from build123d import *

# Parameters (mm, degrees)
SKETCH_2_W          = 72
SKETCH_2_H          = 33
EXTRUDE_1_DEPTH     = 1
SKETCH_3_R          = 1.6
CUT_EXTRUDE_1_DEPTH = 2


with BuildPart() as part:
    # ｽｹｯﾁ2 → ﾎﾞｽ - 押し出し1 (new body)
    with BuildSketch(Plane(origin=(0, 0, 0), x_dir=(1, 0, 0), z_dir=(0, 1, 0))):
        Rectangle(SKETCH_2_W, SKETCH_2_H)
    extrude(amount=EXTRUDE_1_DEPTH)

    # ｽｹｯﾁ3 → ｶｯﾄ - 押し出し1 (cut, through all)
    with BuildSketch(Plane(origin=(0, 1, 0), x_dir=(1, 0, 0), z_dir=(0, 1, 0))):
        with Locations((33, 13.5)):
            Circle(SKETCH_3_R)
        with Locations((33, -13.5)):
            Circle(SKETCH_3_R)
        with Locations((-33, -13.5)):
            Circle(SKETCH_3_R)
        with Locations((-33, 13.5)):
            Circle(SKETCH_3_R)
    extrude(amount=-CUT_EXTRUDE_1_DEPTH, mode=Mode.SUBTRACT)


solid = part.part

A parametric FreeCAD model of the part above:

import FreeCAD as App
import Part
import Sketcher

V = App.Vector


def add_polygon(sketch, points):
    """Adds a closed chain of lines whose ends are joined by coincident constraints."""
    first, n = sketch.GeometryCount, len(points)
    for a, b in zip(points, points[1:] + points[:1]):
        sketch.addGeometry(Part.LineSegment(App.Vector(*a, 0), App.Vector(*b, 0)), False)
    for i in range(n):
        sketch.addConstraint(Sketcher.Constraint("Coincident", first + i, 2, first + (i + 1) % n, 1))

doc = App.newDocument("Part")
params = doc.addObject("Spreadsheet::Sheet", "Params")
for row, (alias, value) in enumerate([
    ("sketch1_width", "72 mm"),
    ("sketch1_height", "33 mm"),
    ("pad1_length", "1 mm"),
    ("sketch2_diameter", "3.2 mm"),
], start=1):
    params.set(f"A{row}", alias)
    params.set(f"B{row}", "=" + value)
    params.setAlias(f"B{row}", alias)

body = doc.addObject("PartDesign::Body", "Body")

# Sketch on XZ plane
sketch1 = body.newObject("Sketcher::SketchObject", "Sketch")
sketch1.AttachmentSupport = (doc.getObject("XZ_Plane"), [""])
sketch1.MapMode = "FlatFace"
add_polygon(sketch1, [(-36, -16), (-36, 16), (36, 16), (36, -16)])  # lines 0-3
sketch1.addConstraint([
    Sketcher.Constraint("Vertical", 0),
    Sketcher.Constraint("Horizontal", 1),
    Sketcher.Constraint("Vertical", 2),
    Sketcher.Constraint("Horizontal", 3),
    Sketcher.Constraint("Symmetric", 0, 2, 2, 2, -1, 1),
    Sketcher.Constraint("DistanceX", 1, 1, 1, 2, 72.0),
    Sketcher.Constraint("DistanceY", 0, 1, 0, 2, 33.0),
])
sketch1.setExpression("Constraints[9]", "Params.sketch1_width")
sketch1.setExpression("Constraints[10]", "Params.sketch1_height")
pad1 = body.newObject("PartDesign::Pad", "Pad")
pad1.Profile = sketch1
pad1.setExpression("Length", "Params.pad1_length")
pad1.Reversed = True

# Sketch on XZ plane
sketch2 = body.newObject("Sketcher::SketchObject", "Sketch001")
sketch2.AttachmentSupport = (doc.getObject("XZ_Plane"), [""])
sketch2.MapMode = "FlatFace"
sketch2.AttachmentOffset = App.Placement(V(0, 0, -1), App.Rotation())
sketch2.addGeometry([
    Part.Circle(V(33, -13.5, 0), V(0, 0, 1), 1.6),
    Part.Circle(V(33, 13.5, 0), V(0, 0, 1), 1.6),
    Part.Circle(V(-33, 13.5, 0), V(0, 0, 1), 1.6),
    Part.Circle(V(-33, -13.5, 0), V(0, 0, 1), 1.6),
], False)
sketch2.addConstraint([
    Sketcher.Constraint("Equal", 0, 1),
    Sketcher.Constraint("Equal", 1, 2),
    Sketcher.Constraint("Equal", 2, 3),
    Sketcher.Constraint("Symmetric", 0, 3, 2, 3, -1, 1),
    Sketcher.Constraint("Symmetric", 1, 3, 3, 3, -1, 1),
    Sketcher.Constraint("Symmetric", 1, 3, 2, 3, -2),
    Sketcher.Constraint("Diameter", 0, 3.2),
    Sketcher.Constraint("DistanceX", -1, 1, 0, 3, 33.0),
    Sketcher.Constraint("DistanceY", 0, 3, 1, 3, 27.0),
])
sketch2.setExpression("Constraints[6]", "Params.sketch2_diameter")
pocket1 = body.newObject("PartDesign::Pocket", "Pocket")
pocket1.Profile = sketch2
pocket1.Type = "ThroughAll"
pocket1.Reversed = True

doc.recompute()
